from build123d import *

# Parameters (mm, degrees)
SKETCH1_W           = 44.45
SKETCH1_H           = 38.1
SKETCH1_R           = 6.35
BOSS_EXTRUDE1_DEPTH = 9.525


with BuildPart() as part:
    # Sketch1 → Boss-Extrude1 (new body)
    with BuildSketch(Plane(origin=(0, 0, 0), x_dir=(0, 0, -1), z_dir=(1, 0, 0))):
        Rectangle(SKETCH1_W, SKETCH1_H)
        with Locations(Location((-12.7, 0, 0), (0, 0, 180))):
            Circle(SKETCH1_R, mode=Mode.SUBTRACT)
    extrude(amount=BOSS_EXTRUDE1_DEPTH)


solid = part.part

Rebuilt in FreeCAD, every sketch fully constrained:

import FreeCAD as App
import Part
import Sketcher
from FreeCAD import Vector
Q = App.Units.Quantity

doc = App.newDocument("Part")
body = doc.addObject("PartDesign::Body", "Body")

sketch1 = body.newObject("Sketcher::SketchObject", "Sketch")
sketch1.AttachmentSupport = (doc.getObject("YZ_Plane"), [""])
sketch1.MapMode = "FlatFace"
sketch1.addGeometry([
    Part.LineSegment(Vector(19.05, 22.225, 0), Vector(-19.05, 22.225, 0)),
    Part.LineSegment(Vector(-19.05, 22.225, 0), Vector(-19.05, -22.225, 0)),
    Part.LineSegment(Vector(-19.05, -22.225, 0), Vector(19.05, -22.225, 0)),
    Part.LineSegment(Vector(19.05, -22.225, 0), Vector(19.05, 22.225, 0)),
    Part.Circle(Vector(0, 12.7, 0), Vector(0, 0, 1), 6.35),
], False)
sketch1.addConstraint([
    Sketcher.Constraint("Coincident", 0, 2, 1, 1),
    Sketcher.Constraint("Coincident", 1, 2, 2, 1),
    Sketcher.Constraint("Coincident", 2, 2, 3, 1),
    Sketcher.Constraint("Coincident", 3, 2, 0, 1),
    Sketcher.Constraint("Horizontal", 0),
    Sketcher.Constraint("Vertical", 1),
    Sketcher.Constraint("Horizontal", 2),
    Sketcher.Constraint("Vertical", 3),
    Sketcher.Constraint("Symmetric", 0, 2, 2, 2, -1, 1),
    Sketcher.Constraint("PointOnObject", 4, 3, -2),
    Sketcher.Constraint("Diameter", 4, Q("0.5 in")),
    Sketcher.Constraint("DistanceX", 0, 2, 0, 1, Q("1.5 in")),
    Sketcher.Constraint("DistanceY", 1, 2, 1, 1, Q("1.75 in")),
    Sketcher.Constraint("DistanceY", -1, 1, 4, 3, Q("0.5 in")),
])
pad1 = body.newObject("PartDesign::Pad", "Pad")
pad1.Profile = sketch1
pad1.Length = Q("0.375 in")

doc.recompute()
